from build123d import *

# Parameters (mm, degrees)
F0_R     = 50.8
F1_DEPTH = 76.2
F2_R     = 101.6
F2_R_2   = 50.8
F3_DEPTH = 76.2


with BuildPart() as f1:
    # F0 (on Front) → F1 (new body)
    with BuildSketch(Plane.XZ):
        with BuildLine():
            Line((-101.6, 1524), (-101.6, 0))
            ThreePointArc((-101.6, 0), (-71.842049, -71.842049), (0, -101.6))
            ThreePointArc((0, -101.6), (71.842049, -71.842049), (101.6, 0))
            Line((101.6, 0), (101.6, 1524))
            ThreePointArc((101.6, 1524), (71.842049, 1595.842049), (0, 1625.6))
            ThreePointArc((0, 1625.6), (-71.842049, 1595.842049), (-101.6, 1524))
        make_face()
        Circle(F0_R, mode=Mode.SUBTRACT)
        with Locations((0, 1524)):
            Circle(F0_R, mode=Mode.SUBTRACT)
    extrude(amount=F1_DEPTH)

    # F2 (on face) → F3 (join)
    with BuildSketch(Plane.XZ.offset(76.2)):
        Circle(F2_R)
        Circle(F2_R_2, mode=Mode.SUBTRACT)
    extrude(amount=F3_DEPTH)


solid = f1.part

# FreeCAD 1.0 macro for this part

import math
import FreeCAD as App
import Part
import Sketcher
Q = App.Units.Quantity

doc = App.newDocument("Part")
params = doc.addObject("Spreadsheet::Sheet", "Params")
for row, (alias, value) in enumerate([
    ("sketch1_diameter", "4 in"),
    ("sketch1_radius", "4 in"),
    ("sketch1_height", "60 in"),
    ("pad1_length", "3 in"),
    ("sketch2_diameter", "8 in"),
    ("sketch2_diameter2", "4 in"),
    ("pad2_length", "3 in"),
], start=1):
    params.set(f"A{row}", alias)
    params.set(f"B{row}", "=" + value)
    params.setAlias(f"B{row}", alias)

body = doc.addObject("PartDesign::Body", "Body")

sketch1 = body.newObject("Sketcher::SketchObject", "Sketch")
sketch1.AttachmentSupport = (doc.getObject("XZ_Plane"), [""])
sketch1.MapMode = "FlatFace"
sketch1.addGeometry([
    Part.LineSegment(App.Vector(-101.6, 1524, 0), App.Vector(-101.6, 0, 0)),
    Part.ArcOfCircle(Part.Circle(App.Vector(0, 0, 0), App.Vector(0, 0, 1), 101.6), math.radians(180), math.radians(270)),
    Part.ArcOfCircle(Part.Circle(App.Vector(0, 0, 0), App.Vector(0, 0, 1), 101.6), math.radians(-90), math.radians(0)),
    Part.LineSegment(App.Vector(101.6, 0, 0), App.Vector(101.6, 1524, 0)),
    Part.ArcOfCircle(Part.Circle(App.Vector(0, 1524, 0), App.Vector(0, 0, 1), 101.6), math.radians(0), math.radians(90)),
    Part.ArcOfCircle(Part.Circle(App.Vector(0, 1524, 0), App.Vector(0, 0, 1), 101.6), math.radians(90), math.radians(180)),
    Part.Circle(App.Vector(0, 0, 0), App.Vector(0, 0, 1), 50.8),
    Part.Circle(App.Vector(0, 1524, 0), App.Vector(0, 0, 1), 50.8),
], False)
sketch1.addConstraint([
    Sketcher.Constraint("Tangent", 0, 2, 1, 1),
    Sketcher.Constraint("Tangent", 1, 2, 2, 1),
    Sketcher.Constraint("Tangent", 2, 2, 3, 1),
    Sketcher.Constraint("Tangent", 3, 2, 4, 1),
    Sketcher.Constraint("Tangent", 4, 2, 5, 1),
    Sketcher.Constraint("Tangent", 5, 2, 0, 1),
    Sketcher.Constraint("Vertical", 0),
    Sketcher.Constraint("Vertical", 3),
    Sketcher.Constraint("Coincident", 1, 3, -1, 1),
    Sketcher.Constraint("Coincident", 6, 3, -1, 1),
    Sketcher.Constraint("Coincident", 7, 3, 4, 3),
    Sketcher.Constraint("Equal", 1, 2),
    Sketcher.Constraint("Equal", 2, 4),
    Sketcher.Constraint("Equal", 6, 7),
    Sketcher.Constraint("PointOnObject", 1, 2, -2),
    Sketcher.Constraint("PointOnObject", 4, 2, -2),
    Sketcher.Constraint("Diameter", 6, Q("4 in")),
    Sketcher.Constraint("Radius", 1, Q("4 in")),
    Sketcher.Constraint("DistanceY", 0, 2, 0, 1, Q("60 in")),
])
sketch1.setExpression("Constraints[16]", "Params.sketch1_diameter")
sketch1.setExpression("Constraints[17]", "Params.sketch1_radius")
sketch1.setExpression("Constraints[18]", "Params.sketch1_height")
pad1 = body.newObject("PartDesign::Pad", "Pad")
pad1.Profile = sketch1
pad1.setExpression("Length", "Params.pad1_length")

sketch2 = body.newObject("Sketcher::SketchObject", "Sketch001")
sketch2.AttachmentSupport = (doc.getObject("XZ_Plane"), [""])
sketch2.MapMode = "FlatFace"
sketch2.AttachmentOffset = App.Placement(App.Vector(0, 0, 3 * 25.4), App.Rotation())
sketch2.addGeometry([
    Part.Circle(App.Vector(0, 0, 0), App.Vector(0, 0, 1), 101.6),
    Part.Circle(App.Vector(0, 0, 0), App.Vector(0, 0, 1), 50.8),
], False)
sketch2.addConstraint([
    Sketcher.Constraint("Coincident", 0, 3, -1, 1),
    Sketcher.Constraint("Coincident", 1, 3, -1, 1),
    Sketcher.Constraint("Diameter", 0, Q("8 in")),
    Sketcher.Constraint("Diameter", 1, Q("4 in")),
])
sketch2.setExpression("Constraints[2]", "Params.sketch2_diameter")
sketch2.setExpression("Constraints[3]", "Params.sketch2_diameter2")
pad2 = body.newObject("PartDesign::Pad", "Pad001")
pad2.Profile = sketch2
pad2.setExpression("Length", "Params.pad2_length")

doc.recompute()
